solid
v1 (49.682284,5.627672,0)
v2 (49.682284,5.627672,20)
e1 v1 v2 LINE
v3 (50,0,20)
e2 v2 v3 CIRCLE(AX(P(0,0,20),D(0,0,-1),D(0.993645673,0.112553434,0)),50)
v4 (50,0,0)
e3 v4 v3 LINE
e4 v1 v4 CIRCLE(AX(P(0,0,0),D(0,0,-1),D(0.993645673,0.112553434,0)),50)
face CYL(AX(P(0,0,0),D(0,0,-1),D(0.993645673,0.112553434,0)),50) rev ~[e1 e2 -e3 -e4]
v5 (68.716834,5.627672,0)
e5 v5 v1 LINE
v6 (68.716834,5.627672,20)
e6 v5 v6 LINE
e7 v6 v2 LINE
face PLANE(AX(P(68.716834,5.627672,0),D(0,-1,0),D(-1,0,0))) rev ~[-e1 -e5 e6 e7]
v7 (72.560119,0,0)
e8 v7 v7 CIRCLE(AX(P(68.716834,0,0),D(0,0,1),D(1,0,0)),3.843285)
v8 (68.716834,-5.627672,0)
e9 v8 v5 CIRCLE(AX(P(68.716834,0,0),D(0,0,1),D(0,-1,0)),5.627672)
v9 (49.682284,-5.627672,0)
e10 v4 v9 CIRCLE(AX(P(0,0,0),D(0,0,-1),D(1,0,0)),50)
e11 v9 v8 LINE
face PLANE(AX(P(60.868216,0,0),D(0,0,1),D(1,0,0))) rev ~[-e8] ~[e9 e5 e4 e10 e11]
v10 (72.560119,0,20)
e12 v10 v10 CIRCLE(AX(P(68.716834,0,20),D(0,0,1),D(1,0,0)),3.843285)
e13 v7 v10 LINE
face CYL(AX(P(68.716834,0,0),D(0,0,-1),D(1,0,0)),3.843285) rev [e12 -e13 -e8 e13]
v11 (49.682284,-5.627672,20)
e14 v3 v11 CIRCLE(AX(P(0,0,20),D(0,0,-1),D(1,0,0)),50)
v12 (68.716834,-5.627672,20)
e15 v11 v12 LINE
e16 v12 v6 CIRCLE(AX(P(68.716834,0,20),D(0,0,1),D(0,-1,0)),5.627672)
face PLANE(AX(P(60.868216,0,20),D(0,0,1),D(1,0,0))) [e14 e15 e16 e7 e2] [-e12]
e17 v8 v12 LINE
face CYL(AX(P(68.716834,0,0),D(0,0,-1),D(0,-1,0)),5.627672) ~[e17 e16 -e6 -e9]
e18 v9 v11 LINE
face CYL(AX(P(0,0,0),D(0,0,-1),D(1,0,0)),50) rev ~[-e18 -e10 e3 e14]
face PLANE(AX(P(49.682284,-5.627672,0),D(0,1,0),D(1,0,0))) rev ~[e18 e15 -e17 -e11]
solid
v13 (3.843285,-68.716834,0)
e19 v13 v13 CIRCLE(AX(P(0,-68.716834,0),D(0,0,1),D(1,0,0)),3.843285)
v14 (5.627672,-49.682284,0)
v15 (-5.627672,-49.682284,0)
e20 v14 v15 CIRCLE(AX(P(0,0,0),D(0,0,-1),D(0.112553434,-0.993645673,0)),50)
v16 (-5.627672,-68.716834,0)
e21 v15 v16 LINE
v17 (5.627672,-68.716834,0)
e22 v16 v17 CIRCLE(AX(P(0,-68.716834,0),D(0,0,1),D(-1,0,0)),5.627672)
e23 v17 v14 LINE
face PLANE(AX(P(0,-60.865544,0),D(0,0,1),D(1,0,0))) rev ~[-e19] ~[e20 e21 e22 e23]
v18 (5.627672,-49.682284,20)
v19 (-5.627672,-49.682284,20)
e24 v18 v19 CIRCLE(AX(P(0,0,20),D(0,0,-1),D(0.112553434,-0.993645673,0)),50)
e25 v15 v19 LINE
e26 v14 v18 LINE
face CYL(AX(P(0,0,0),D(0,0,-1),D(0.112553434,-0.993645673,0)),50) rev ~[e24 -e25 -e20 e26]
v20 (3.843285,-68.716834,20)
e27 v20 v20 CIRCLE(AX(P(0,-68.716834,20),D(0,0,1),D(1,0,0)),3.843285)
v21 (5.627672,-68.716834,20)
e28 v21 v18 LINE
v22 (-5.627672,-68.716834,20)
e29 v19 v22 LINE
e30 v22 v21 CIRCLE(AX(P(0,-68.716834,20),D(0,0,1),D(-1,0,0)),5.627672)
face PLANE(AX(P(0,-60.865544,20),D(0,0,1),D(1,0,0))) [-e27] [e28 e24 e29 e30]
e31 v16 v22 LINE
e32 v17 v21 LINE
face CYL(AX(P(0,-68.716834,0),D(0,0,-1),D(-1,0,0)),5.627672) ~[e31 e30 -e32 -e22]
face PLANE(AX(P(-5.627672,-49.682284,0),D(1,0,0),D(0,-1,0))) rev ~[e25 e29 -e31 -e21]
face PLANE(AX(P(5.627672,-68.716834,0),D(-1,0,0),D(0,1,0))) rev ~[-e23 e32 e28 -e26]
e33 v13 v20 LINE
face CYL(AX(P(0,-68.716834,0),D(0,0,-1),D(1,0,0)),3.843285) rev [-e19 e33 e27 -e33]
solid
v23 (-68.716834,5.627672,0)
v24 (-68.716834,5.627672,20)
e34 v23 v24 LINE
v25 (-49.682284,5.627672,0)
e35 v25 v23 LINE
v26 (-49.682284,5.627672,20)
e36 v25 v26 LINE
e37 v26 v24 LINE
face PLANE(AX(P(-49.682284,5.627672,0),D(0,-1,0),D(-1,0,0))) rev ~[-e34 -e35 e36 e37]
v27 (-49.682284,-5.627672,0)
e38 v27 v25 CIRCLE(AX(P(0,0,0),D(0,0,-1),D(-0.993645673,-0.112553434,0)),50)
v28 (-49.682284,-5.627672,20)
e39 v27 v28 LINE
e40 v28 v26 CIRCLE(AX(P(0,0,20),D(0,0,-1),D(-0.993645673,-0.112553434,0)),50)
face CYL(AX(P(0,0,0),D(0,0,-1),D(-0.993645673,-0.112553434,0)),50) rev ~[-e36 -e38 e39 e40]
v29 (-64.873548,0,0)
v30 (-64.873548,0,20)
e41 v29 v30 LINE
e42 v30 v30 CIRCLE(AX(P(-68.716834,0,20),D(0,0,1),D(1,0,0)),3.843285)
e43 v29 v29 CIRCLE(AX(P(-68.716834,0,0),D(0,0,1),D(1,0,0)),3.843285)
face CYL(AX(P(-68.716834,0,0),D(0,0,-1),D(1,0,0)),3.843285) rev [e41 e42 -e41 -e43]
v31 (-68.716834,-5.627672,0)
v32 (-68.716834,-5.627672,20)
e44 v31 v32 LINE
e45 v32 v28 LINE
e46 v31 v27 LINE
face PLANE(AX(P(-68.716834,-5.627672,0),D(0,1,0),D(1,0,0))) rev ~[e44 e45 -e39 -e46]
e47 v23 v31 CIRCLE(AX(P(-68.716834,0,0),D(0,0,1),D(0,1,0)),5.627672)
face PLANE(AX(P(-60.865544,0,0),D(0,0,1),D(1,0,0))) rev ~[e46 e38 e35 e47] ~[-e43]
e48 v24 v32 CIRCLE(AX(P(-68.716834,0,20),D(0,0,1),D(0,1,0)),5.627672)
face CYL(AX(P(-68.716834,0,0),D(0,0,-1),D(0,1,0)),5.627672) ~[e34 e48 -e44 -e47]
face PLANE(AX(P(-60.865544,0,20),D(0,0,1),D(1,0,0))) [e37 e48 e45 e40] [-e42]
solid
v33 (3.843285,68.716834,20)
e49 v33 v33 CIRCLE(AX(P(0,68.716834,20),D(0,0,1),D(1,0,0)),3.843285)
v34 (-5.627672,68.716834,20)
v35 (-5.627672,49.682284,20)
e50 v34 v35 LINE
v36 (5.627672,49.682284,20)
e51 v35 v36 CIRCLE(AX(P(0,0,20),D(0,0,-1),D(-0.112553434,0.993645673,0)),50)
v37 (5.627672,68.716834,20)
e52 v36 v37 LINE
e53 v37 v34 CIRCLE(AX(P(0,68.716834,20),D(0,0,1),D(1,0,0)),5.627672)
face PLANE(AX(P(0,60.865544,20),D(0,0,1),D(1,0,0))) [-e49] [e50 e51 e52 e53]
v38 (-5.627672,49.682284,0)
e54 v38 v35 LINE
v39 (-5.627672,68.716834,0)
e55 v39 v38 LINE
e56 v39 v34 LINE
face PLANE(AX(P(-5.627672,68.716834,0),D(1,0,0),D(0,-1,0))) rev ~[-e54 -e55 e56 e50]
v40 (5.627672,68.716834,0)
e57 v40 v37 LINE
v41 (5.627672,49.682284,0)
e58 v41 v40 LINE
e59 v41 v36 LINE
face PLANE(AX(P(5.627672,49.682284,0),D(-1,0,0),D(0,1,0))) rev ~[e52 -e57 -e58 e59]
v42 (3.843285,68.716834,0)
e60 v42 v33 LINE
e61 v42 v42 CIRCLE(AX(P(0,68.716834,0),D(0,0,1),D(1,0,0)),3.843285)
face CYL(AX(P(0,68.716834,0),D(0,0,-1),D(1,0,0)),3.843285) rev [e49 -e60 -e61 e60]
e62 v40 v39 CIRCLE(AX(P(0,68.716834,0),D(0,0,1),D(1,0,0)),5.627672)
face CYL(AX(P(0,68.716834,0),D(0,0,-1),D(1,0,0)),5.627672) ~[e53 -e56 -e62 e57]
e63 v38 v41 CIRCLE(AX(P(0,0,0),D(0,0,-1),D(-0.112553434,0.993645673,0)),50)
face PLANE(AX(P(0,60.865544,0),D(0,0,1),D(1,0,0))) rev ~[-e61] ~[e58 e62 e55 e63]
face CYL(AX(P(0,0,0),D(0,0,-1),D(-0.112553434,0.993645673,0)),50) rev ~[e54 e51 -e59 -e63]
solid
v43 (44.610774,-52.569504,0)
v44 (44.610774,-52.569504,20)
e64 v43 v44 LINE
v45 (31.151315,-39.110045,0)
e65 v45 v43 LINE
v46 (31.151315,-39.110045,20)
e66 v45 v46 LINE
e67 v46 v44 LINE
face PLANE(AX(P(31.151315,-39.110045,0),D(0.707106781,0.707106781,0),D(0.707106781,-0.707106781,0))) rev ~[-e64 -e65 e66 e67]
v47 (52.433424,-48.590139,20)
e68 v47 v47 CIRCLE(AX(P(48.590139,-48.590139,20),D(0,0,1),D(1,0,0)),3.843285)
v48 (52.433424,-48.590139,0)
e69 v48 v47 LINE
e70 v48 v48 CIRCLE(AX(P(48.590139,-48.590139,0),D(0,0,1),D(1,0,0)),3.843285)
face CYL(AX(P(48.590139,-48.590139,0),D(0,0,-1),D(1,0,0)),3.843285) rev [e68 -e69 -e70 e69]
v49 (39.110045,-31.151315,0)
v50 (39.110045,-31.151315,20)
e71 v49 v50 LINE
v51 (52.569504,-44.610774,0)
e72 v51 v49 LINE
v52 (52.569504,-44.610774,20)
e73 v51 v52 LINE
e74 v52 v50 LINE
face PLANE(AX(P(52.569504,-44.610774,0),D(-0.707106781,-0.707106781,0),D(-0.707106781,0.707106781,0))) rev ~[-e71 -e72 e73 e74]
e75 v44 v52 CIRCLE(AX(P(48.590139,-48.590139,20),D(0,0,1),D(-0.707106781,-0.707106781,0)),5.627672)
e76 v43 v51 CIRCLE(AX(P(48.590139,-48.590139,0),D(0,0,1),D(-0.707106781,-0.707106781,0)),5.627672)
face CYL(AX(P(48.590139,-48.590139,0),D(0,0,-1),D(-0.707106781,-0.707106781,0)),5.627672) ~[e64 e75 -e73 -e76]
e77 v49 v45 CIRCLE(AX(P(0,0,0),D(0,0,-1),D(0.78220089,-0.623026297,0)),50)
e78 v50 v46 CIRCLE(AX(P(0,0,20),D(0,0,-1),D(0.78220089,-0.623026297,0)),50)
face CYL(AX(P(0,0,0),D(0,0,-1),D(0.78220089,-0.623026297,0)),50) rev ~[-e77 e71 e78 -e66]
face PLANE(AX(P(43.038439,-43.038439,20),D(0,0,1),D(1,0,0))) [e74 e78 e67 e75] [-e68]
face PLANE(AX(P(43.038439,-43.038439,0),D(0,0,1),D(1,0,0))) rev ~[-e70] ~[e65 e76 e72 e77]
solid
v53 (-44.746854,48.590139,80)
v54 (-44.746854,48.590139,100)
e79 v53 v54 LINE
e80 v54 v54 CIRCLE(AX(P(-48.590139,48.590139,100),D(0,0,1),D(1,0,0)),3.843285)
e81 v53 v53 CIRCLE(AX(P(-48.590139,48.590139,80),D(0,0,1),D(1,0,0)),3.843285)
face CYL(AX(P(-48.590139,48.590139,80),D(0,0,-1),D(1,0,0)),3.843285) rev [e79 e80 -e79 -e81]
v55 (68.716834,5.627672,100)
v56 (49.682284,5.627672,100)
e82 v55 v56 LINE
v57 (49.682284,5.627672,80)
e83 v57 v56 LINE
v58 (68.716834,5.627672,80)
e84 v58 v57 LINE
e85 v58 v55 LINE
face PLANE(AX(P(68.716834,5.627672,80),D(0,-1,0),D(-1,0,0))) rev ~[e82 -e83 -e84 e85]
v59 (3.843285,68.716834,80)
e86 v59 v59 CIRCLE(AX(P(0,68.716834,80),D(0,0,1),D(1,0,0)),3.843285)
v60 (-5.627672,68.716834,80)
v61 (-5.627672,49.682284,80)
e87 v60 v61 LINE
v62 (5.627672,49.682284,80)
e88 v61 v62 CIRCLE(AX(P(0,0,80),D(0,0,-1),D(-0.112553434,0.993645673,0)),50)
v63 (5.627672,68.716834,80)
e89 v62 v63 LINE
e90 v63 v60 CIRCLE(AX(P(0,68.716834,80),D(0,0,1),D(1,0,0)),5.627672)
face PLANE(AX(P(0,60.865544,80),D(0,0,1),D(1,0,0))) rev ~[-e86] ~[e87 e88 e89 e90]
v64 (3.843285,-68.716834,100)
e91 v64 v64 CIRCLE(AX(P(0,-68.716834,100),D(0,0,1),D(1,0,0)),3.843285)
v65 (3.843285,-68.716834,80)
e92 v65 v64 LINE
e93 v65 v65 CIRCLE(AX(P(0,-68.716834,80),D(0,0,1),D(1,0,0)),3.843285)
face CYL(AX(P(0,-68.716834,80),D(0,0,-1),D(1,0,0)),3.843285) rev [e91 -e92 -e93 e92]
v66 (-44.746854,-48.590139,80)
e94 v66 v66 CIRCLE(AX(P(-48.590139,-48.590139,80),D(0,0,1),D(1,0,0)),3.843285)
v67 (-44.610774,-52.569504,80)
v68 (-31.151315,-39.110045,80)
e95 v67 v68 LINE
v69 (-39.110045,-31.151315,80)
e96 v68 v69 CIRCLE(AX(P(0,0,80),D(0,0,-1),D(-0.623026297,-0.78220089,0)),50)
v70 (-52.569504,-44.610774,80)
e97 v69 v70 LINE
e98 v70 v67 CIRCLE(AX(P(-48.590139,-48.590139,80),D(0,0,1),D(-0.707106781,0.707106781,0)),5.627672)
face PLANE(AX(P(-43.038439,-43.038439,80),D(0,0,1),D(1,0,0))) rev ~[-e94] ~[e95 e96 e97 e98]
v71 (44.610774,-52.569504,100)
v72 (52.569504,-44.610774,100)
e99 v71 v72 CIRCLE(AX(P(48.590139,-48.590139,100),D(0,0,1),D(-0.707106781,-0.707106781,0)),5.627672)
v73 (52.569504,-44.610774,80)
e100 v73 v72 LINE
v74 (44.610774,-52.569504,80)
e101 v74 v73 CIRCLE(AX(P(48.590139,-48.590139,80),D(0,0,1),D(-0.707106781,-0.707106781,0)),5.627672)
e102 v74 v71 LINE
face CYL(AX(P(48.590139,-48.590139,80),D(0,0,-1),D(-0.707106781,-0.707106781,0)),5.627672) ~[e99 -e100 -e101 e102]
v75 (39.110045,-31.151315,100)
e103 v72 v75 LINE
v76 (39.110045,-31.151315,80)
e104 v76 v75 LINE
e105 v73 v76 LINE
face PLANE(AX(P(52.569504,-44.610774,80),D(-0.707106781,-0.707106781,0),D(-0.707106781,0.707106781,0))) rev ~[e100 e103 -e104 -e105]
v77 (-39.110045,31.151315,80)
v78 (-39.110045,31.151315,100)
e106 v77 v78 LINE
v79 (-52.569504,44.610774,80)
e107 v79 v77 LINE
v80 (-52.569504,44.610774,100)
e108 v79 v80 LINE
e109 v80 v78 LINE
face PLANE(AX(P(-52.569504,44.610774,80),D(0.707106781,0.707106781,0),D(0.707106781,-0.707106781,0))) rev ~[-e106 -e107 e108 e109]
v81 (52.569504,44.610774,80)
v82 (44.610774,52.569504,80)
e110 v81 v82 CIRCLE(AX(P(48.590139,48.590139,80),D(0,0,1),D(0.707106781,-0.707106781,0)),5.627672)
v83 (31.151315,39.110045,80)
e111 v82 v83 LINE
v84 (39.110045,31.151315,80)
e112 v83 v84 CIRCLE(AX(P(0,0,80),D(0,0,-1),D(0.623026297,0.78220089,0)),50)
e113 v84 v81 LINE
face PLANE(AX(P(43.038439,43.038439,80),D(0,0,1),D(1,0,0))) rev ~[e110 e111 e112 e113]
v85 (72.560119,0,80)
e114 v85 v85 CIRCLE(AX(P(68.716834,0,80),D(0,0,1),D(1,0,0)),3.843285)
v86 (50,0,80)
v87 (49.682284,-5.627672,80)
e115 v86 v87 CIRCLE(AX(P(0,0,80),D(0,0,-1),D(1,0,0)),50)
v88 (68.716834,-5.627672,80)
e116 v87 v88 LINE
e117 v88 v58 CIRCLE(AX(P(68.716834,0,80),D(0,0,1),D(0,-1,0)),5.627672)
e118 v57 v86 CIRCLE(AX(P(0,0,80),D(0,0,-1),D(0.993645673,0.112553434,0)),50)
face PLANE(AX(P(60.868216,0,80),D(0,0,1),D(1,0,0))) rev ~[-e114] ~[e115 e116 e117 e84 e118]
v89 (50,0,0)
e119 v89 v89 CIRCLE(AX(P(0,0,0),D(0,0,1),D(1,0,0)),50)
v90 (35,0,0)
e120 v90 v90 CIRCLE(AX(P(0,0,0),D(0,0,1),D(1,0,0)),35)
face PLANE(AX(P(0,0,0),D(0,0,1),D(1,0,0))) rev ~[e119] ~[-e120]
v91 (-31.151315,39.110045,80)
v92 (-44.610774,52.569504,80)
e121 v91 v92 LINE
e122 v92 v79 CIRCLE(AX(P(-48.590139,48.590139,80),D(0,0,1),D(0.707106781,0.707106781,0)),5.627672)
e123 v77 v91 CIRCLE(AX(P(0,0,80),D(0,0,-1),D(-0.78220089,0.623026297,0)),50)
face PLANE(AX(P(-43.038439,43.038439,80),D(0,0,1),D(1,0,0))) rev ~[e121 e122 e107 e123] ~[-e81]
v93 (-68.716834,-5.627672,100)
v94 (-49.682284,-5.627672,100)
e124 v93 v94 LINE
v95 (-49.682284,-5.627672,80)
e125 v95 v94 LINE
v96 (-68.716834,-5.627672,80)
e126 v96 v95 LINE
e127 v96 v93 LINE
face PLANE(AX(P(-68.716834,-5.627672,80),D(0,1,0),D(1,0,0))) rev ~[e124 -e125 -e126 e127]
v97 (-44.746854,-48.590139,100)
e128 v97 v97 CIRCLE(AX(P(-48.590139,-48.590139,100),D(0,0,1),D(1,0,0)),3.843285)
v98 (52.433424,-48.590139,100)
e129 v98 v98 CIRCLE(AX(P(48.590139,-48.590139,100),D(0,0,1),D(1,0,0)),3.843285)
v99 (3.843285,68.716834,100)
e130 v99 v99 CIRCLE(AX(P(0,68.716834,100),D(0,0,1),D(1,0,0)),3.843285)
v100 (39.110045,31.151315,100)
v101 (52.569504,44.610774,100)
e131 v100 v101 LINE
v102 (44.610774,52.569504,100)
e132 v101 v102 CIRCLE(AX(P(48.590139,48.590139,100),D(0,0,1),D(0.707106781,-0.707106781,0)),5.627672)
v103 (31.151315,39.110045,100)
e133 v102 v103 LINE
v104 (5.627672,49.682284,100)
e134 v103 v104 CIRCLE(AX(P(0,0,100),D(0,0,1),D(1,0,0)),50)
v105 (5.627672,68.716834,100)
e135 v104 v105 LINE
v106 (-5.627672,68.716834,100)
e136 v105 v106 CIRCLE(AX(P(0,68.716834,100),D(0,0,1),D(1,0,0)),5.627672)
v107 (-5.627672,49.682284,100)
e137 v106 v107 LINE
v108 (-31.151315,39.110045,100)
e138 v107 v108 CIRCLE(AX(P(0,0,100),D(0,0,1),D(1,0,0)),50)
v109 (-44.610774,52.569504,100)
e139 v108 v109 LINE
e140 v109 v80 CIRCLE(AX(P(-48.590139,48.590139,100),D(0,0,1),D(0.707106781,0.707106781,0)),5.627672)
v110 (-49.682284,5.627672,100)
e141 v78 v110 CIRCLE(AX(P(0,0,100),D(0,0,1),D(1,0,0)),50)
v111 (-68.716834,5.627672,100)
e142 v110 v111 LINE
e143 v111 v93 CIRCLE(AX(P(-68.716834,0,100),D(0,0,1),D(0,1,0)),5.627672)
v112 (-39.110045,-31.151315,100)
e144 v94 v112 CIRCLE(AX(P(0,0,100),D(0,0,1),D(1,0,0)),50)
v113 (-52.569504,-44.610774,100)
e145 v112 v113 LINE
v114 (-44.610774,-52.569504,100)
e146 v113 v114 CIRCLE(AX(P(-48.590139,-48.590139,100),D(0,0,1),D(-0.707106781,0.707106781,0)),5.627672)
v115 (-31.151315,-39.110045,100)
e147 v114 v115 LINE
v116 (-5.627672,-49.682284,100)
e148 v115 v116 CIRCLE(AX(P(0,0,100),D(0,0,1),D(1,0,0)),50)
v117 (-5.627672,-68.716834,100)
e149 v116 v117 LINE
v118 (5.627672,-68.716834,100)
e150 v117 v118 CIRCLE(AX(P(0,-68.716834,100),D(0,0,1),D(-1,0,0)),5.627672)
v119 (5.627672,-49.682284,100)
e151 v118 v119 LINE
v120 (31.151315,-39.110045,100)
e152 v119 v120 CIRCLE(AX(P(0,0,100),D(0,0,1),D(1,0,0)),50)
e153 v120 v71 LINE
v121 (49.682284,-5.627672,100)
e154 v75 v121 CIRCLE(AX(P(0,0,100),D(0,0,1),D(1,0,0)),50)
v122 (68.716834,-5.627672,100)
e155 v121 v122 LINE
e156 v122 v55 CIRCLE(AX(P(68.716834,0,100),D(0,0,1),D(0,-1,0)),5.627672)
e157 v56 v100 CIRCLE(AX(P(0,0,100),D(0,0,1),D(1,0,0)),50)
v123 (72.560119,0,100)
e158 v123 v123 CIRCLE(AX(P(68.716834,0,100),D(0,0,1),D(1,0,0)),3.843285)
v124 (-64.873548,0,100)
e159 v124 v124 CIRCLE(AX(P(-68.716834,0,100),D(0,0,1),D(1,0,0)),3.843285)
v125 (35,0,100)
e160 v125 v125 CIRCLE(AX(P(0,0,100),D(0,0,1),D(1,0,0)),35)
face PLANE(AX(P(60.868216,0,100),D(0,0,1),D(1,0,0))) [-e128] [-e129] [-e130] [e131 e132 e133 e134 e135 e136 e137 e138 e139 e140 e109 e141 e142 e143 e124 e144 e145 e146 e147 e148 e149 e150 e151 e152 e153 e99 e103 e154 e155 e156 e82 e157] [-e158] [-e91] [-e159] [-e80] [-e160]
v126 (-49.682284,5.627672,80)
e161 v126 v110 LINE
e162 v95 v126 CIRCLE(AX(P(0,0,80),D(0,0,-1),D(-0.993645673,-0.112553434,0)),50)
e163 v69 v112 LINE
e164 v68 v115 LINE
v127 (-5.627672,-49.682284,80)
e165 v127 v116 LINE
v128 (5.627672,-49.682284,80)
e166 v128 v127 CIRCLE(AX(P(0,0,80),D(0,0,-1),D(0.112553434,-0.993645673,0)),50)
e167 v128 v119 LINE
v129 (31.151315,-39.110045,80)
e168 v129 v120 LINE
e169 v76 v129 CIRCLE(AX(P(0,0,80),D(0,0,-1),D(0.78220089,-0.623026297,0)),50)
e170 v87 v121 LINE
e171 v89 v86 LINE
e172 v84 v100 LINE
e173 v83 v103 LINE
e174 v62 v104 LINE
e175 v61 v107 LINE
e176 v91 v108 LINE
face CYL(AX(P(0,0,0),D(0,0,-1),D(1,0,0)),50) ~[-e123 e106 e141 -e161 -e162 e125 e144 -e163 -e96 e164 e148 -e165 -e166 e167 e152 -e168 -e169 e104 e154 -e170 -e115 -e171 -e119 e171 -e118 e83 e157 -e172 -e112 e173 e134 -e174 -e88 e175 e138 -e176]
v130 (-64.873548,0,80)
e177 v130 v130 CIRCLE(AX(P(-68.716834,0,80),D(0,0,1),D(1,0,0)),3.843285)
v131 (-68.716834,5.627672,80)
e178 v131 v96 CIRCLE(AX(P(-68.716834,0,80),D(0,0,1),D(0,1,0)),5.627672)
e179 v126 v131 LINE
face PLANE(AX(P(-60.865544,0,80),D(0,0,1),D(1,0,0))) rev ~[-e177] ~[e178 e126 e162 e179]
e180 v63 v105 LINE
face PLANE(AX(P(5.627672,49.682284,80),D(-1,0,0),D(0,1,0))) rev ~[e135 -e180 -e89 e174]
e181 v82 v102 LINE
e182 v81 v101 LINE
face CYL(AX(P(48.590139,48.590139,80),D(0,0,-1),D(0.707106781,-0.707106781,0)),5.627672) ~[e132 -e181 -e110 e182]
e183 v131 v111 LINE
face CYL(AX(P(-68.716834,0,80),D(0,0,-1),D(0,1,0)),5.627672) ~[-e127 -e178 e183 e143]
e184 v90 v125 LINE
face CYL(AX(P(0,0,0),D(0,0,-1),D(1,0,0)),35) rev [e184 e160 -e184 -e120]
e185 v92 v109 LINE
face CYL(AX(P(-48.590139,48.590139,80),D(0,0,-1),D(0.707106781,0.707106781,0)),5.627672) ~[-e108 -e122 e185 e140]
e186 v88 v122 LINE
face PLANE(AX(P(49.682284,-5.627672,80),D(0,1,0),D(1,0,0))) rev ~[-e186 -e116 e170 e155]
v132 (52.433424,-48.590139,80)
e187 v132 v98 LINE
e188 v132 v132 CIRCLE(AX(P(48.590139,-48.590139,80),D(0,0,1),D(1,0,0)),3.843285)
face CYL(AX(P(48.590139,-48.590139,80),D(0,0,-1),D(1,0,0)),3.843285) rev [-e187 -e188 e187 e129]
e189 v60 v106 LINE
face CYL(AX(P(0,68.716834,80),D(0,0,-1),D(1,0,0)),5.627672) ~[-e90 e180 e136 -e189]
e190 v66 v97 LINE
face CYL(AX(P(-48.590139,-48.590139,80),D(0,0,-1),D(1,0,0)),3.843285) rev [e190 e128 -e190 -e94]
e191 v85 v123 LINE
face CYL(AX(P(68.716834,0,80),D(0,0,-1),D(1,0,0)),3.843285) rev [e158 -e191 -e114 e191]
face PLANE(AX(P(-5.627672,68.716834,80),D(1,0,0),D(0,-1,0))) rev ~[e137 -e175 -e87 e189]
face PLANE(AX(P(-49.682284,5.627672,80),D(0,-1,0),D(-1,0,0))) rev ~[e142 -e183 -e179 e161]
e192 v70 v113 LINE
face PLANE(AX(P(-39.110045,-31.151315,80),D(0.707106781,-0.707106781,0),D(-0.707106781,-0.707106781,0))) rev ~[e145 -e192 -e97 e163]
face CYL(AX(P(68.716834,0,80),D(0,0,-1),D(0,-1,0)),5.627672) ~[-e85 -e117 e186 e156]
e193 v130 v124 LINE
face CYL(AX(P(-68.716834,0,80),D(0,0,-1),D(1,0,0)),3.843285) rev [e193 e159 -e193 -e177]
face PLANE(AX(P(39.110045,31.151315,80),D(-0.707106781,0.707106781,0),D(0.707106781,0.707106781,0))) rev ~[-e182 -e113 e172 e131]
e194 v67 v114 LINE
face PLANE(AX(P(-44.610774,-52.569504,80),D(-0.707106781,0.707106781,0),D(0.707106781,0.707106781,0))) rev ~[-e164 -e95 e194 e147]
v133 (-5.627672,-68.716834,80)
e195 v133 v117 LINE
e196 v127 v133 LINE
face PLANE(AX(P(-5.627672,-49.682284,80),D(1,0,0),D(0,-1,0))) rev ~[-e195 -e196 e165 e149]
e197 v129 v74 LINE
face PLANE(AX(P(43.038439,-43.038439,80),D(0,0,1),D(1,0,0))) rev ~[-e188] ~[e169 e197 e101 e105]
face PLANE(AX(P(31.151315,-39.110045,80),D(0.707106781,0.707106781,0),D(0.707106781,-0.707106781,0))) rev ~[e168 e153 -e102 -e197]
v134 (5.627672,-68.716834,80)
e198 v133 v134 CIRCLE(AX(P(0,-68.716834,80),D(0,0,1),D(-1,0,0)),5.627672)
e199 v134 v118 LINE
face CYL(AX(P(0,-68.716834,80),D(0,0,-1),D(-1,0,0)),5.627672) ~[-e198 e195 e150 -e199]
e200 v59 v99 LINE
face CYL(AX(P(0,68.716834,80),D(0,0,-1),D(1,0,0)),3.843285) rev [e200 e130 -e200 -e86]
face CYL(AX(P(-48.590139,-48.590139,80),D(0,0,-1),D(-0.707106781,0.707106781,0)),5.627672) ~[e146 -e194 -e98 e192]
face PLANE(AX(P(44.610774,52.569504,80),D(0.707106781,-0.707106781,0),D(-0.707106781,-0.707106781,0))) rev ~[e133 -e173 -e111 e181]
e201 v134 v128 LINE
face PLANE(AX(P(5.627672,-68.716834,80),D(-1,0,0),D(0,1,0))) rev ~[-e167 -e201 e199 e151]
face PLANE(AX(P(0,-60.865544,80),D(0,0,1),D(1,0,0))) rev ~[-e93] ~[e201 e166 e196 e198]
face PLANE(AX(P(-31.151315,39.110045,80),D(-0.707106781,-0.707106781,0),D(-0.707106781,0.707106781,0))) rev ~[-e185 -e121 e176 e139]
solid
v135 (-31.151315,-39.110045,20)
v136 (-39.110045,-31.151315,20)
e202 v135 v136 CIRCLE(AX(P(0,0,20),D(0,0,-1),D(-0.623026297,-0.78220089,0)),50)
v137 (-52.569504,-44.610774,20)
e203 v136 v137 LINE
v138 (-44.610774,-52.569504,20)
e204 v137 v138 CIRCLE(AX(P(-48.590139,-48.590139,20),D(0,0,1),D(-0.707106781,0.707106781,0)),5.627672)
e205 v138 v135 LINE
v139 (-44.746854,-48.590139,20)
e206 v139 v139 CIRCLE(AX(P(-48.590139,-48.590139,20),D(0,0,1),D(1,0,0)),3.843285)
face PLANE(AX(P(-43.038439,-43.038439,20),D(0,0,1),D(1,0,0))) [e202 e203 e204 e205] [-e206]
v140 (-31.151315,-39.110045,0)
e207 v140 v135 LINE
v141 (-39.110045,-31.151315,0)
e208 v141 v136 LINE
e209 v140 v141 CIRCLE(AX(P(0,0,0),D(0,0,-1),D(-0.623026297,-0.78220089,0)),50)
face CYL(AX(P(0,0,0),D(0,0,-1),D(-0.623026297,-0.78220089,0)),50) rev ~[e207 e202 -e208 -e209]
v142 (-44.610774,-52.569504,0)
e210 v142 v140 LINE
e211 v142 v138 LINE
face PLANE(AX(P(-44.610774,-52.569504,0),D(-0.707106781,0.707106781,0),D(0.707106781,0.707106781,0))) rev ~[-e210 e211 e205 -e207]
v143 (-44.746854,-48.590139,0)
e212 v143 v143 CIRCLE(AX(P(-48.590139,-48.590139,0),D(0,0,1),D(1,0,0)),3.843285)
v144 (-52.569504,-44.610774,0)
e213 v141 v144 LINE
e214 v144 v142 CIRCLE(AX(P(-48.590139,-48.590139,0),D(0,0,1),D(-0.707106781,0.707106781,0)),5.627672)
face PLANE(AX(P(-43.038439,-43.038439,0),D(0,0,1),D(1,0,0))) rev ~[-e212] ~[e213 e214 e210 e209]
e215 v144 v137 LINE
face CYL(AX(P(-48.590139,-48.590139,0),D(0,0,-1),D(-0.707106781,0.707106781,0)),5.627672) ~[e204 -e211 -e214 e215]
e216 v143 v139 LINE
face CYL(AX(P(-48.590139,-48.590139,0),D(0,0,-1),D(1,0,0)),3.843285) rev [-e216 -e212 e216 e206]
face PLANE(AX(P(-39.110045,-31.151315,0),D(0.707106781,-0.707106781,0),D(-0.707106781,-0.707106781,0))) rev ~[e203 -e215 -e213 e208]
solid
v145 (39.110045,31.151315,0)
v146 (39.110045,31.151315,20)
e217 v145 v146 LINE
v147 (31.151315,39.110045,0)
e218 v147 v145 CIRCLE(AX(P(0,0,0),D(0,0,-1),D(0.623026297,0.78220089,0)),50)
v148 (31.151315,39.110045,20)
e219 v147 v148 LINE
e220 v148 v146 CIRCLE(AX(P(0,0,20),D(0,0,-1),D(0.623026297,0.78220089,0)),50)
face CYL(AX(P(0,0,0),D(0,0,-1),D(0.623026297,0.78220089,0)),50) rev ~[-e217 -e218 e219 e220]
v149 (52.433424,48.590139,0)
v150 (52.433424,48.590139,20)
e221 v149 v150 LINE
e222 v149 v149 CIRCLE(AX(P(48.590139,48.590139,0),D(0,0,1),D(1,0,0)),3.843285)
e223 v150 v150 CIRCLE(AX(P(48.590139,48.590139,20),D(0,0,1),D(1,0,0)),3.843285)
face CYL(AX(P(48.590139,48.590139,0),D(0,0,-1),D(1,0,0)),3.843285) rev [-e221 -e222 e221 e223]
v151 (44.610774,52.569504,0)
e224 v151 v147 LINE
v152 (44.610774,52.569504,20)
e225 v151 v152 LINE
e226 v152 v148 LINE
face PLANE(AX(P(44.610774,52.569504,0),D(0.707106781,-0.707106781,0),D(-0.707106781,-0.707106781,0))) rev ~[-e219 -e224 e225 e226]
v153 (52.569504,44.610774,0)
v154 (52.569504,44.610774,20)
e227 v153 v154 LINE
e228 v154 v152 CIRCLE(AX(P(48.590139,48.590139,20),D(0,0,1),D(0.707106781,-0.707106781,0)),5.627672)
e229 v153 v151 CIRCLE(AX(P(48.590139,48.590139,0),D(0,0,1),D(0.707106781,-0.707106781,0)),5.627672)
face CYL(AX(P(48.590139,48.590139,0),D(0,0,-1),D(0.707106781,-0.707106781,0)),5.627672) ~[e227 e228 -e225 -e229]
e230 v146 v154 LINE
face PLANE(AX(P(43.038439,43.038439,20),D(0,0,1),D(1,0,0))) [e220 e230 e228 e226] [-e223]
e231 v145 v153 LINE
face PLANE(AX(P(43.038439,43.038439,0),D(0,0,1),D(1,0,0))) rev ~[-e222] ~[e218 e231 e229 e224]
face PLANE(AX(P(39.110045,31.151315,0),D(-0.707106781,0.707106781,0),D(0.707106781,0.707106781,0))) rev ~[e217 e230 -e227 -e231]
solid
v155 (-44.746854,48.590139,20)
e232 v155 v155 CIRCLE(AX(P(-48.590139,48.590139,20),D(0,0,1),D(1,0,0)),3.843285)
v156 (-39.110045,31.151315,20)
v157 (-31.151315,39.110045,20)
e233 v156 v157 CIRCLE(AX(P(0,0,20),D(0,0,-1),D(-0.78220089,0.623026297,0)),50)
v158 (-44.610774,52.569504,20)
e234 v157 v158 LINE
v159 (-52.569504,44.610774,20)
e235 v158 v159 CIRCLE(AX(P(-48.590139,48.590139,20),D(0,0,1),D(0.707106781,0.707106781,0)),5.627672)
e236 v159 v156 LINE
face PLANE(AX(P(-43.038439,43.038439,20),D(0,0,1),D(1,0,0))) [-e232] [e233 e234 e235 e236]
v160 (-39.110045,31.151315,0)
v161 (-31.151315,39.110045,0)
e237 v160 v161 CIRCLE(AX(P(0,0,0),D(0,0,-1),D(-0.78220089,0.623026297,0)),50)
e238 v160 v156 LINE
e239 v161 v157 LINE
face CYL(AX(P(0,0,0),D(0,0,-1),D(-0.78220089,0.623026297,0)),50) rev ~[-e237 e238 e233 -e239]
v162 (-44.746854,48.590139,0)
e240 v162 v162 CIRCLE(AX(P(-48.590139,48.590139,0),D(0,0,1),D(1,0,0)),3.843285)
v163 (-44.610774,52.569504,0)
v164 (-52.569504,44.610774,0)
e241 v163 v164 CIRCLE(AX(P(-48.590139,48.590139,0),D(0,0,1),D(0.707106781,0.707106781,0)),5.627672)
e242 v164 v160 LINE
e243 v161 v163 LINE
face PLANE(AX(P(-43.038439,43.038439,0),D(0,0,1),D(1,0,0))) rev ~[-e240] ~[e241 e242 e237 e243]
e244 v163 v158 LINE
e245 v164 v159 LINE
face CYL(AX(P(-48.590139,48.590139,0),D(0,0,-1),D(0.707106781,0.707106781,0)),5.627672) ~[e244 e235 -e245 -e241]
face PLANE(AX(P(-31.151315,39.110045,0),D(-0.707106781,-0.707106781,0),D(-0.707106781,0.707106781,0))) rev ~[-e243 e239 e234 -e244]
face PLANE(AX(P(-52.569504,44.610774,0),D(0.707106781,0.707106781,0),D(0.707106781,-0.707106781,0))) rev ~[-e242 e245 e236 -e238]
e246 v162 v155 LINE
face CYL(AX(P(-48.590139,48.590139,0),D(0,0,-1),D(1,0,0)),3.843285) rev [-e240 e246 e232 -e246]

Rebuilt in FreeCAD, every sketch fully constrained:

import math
import FreeCAD as App
import Part
import Sketcher
from FreeCAD import Vector
Q = App.Units.Quantity

doc = App.newDocument("Part")
body = doc.addObject("PartDesign::Body", "Body")

# Sketch on XY plane
sketch1 = body.newObject("Sketcher::SketchObject", "Sketch")
sketch1.AttachmentSupport = (doc.getObject("XY_Plane"), [""])
sketch1.MapMode = "FlatFace"
sketch1.addGeometry([
    Part.Circle(Vector(0, 0, 0), Vector(0, 0, 1), 50),
    Part.Circle(Vector(0, 0, 0), Vector(0, 0, 1), 35),
], False)
sketch1.addConstraint([
    Sketcher.Constraint("Coincident", 0, 3, -1, 1),
    Sketcher.Constraint("Coincident", 1, 3, -1, 1),
    Sketcher.Constraint("Diameter", 0, 100.0),
    Sketcher.Constraint("Diameter", 1, 70.0),
])
pad1 = body.newObject("PartDesign::Pad", "Pad")
pad1.Profile = sketch1
pad1.Length = 100

# Sketch on XY plane
sketch2 = body.newObject("Sketcher::SketchObject", "Sketch001")
sketch2.AttachmentSupport = (doc.getObject("XY_Plane"), [""])
sketch2.MapMode = "FlatFace"
sketch2.AttachmentOffset = App.Placement(Vector(0, 0, 80), App.Rotation())
sketch2.addGeometry([
    Part.LineSegment(Vector(68.716834, 5.627672, 0), Vector(49.682284, 5.627672, 0)),  # 0
    Part.ArcOfCircle(Part.Circle(Vector(0, 0, 0), Vector(0, 0, 1), 50), math.radians(0), math.radians(6.462531)),  # 1
    Part.ArcOfCircle(Part.Circle(Vector(0, 0, 0), Vector(0, 0, 1), 50), math.radians(-6.462531), math.radians(0)),  # 2
    Part.LineSegment(Vector(49.682284, -5.627672, 0), Vector(68.716834, -5.627672, 0)),  # 3
    Part.ArcOfCircle(Part.Circle(Vector(68.716834, 0, 0), Vector(0, 0, 1), 5.627672), math.radians(-90), math.radians(90)),  # 4
    Part.Circle(Vector(68.716834, 0, 0), Vector(0, 0, 1), 3.843285),  # 5
    Part.ArcOfCircle(Part.Circle(Vector(0, 0, 0), Vector(0, 0, 1), 50), math.radians(-51.462531), math.radians(-38.537469)),  # 6
    Part.LineSegment(Vector(31.151315, -39.110045, 0), Vector(44.610774, -52.569504, 0)),  # 7
    Part.ArcOfCircle(Part.Circle(Vector(48.590139, -48.590139, 0), Vector(0, 0, 1), 5.627672), math.radians(-135), math.radians(45)),  # 8
    Part.LineSegment(Vector(52.569504, -44.610774, 0), Vector(39.110045, -31.151315, 0)),  # 9
    Part.Circle(Vector(48.590139, -48.590139, 0), Vector(0, 0, 1), 3.843285),  # 10
    Part.ArcOfCircle(Part.Circle(Vector(0, 0, 0), Vector(0, 0, 1), 50), math.radians(-96.462531), math.radians(-83.537469)),  # 11
    Part.LineSegment(Vector(-5.627672, -49.682284, 0), Vector(-5.627672, -68.716834, 0)),  # 12
    Part.ArcOfCircle(Part.Circle(Vector(0, -68.716834, 0), Vector(0, 0, 1), 5.627672), math.radians(-180), math.radians(0)),  # 13
    Part.LineSegment(Vector(5.627672, -68.716834, 0), Vector(5.627672, -49.682284, 0)),  # 14
    Part.Circle(Vector(0, -68.716834, 0), Vector(0, 0, 1), 3.843285),  # 15
    Part.ArcOfCircle(Part.Circle(Vector(0, 0, 0), Vector(0, 0, 1), 50), math.radians(-141.462531), math.radians(-128.537469)),  # 16
    Part.LineSegment(Vector(-39.110045, -31.151315, 0), Vector(-52.569504, -44.610774, 0)),  # 17
    Part.ArcOfCircle(Part.Circle(Vector(-48.590139, -48.590139, 0), Vector(0, 0, 1), 5.627672), math.radians(135), math.radians(315)),  # 18
    Part.LineSegment(Vector(-44.610774, -52.569504, 0), Vector(-31.151315, -39.110045, 0)),  # 19
    Part.Circle(Vector(-48.590139, -48.590139, 0), Vector(0, 0, 1), 3.843285),  # 20
    Part.ArcOfCircle(Part.Circle(Vector(0, 0, 0), Vector(0, 0, 1), 50), math.radians(173.537469), math.radians(186.462531)),  # 21
    Part.LineSegment(Vector(-49.682284, 5.627672, 0), Vector(-68.716834, 5.627672, 0)),  # 22
    Part.ArcOfCircle(Part.Circle(Vector(-68.716834, 0, 0), Vector(0, 0, 1), 5.627672), math.radians(90), math.radians(270)),  # 23
    Part.LineSegment(Vector(-68.716834, -5.627672, 0), Vector(-49.682284, -5.627672, 0)),  # 24
    Part.Circle(Vector(-68.716834, 0, 0), Vector(0, 0, 1), 3.843285),  # 25
    Part.ArcOfCircle(Part.Circle(Vector(0, 0, 0), Vector(0, 0, 1), 50), math.radians(128.537469), math.radians(141.462531)),  # 26
    Part.LineSegment(Vector(-31.151315, 39.110045, 0), Vector(-44.610774, 52.569504, 0)),  # 27
    Part.ArcOfCircle(Part.Circle(Vector(-48.590139, 48.590139, 0), Vector(0, 0, 1), 5.627672), math.radians(45), math.radians(225)),  # 28
    Part.LineSegment(Vector(-52.569504, 44.610774, 0), Vector(-39.110045, 31.151315, 0)),  # 29
    Part.Circle(Vector(-48.590139, 48.590139, 0), Vector(0, 0, 1), 3.843285),  # 30
    Part.LineSegment(Vector(-5.627672, 68.716834, 0), Vector(-5.627672, 49.682284, 0)),  # 31
    Part.ArcOfCircle(Part.Circle(Vector(0, 0, 0), Vector(0, 0, 1), 50), math.radians(83.537469), math.radians(96.462531)),  # 32
    Part.LineSegment(Vector(5.627672, 49.682284, 0), Vector(5.627672, 68.716834, 0)),  # 33
    Part.ArcOfCircle(Part.Circle(Vector(0, 68.716834, 0), Vector(0, 0, 1), 5.627672), math.radians(0), math.radians(180)),  # 34
    Part.Circle(Vector(0, 68.716834, 0), Vector(0, 0, 1), 3.843285),  # 35
    Part.LineSegment(Vector(39.110045, 31.151315, 0), Vector(52.569504, 44.610774, 0)),  # 36
    Part.ArcOfCircle(Part.Circle(Vector(48.590139, 48.590139, 0), Vector(0, 0, 1), 5.627672), math.radians(-45), math.radians(135)),  # 37
    Part.LineSegment(Vector(44.610774, 52.569504, 0), Vector(31.151315, 39.110045, 0)),  # 38
    Part.ArcOfCircle(Part.Circle(Vector(0, 0, 0), Vector(0, 0, 1), 50), math.radians(38.537469), math.radians(51.462531)),  # 39
], False)
sketch2.addConstraint([
    Sketcher.Constraint("Coincident", 0, 2, 1, 2),
    Sketcher.Constraint("Tangent", 1, 1, 2, 2),
    Sketcher.Constraint("Coincident", 2, 1, 3, 1),
    Sketcher.Constraint("Tangent", 3, 2, 4, 1),
    Sketcher.Constraint("Tangent", 4, 2, 0, 1),
    Sketcher.Constraint("Coincident", 6, 1, 7, 1),
    Sketcher.Constraint("Tangent", 7, 2, 8, 1),
    Sketcher.Constraint("Tangent", 8, 2, 9, 1),
    Sketcher.Constraint("Coincident", 9, 2, 6, 2),
    Sketcher.Constraint("Coincident", 11, 1, 12, 1),
    Sketcher.Constraint("Tangent", 12, 2, 13, 1),
    Sketcher.Constraint("Tangent", 13, 2, 14, 1),
    Sketcher.Constraint("Coincident", 14, 2, 11, 2),
    Sketcher.Constraint("Coincident", 16, 1, 17, 1),
    Sketcher.Constraint("Tangent", 17, 2, 18, 1),
    Sketcher.Constraint("Tangent", 18, 2, 19, 1),
    Sketcher.Constraint("Coincident", 19, 2, 16, 2),
    Sketcher.Constraint("Coincident", 21, 1, 22, 1),
    Sketcher.Constraint("Tangent", 22, 2, 23, 1),
    Sketcher.Constraint("Tangent", 23, 2, 24, 1),
    Sketcher.Constraint("Coincident", 24, 2, 21, 2),
    Sketcher.Constraint("Coincident", 26, 1, 27, 1),
    Sketcher.Constraint("Tangent", 27, 2, 28, 1),
    Sketcher.Constraint("Tangent", 28, 2, 29, 1),
    Sketcher.Constraint("Coincident", 29, 2, 26, 2),
    Sketcher.Constraint("Coincident", 31, 2, 32, 2),
    Sketcher.Constraint("Coincident", 32, 1, 33, 1),
    Sketcher.Constraint("Tangent", 33, 2, 34, 1),
    Sketcher.Constraint("Tangent", 34, 2, 31, 1),
    Sketcher.Constraint("Tangent", 36, 2, 37, 1),
    Sketcher.Constraint("Tangent", 37, 2, 38, 1),
    Sketcher.Constraint("Coincident", 38, 2, 39, 2),
    Sketcher.Constraint("Coincident", 39, 1, 36, 1),
    Sketcher.Constraint("Horizontal", 0),
    Sketcher.Constraint("Horizontal", 3),
    Sketcher.Constraint("Vertical", 12),
    Sketcher.Constraint("Vertical", 14),
    Sketcher.Constraint("Horizontal", 22),
    Sketcher.Constraint("Horizontal", 24),
    Sketcher.Constraint("Vertical", 31),
    Sketcher.Constraint("Vertical", 33),
    Sketcher.Constraint("Coincident", 1, 3, -1, 1),
    Sketcher.Constraint("Coincident", 6, 3, -1, 1),
    Sketcher.Constraint("Coincident", 11, 3, -1, 1),
    Sketcher.Constraint("Coincident", 16, 3, -1, 1),
    Sketcher.Constraint("Coincident", 21, 3, -1, 1),
    Sketcher.Constraint("Coincident", 26, 3, -1, 1),
    Sketcher.Constraint("Coincident", 32, 3, -1, 1),
    Sketcher.Constraint("Coincident", 39, 3, -1, 1),
    Sketcher.Constraint("Coincident", 5, 3, 4, 3),
    Sketcher.Constraint("Coincident", 10, 3, 8, 3),
    Sketcher.Constraint("Coincident", 15, 3, 13, 3),
    Sketcher.Constraint("Coincident", 20, 3, 18, 3),
    Sketcher.Constraint("Coincident", 25, 3, 23, 3),
    Sketcher.Constraint("Coincident", 30, 3, 28, 3),
    Sketcher.Constraint("Coincident", 35, 3, 34, 3),
    Sketcher.Constraint("Equal", 1, 2),
    Sketcher.Constraint("Equal", 2, 6),
    Sketcher.Constraint("Equal", 4, 8),
    Sketcher.Constraint("Equal", 5, 10),
    Sketcher.Constraint("Equal", 6, 11),
    Sketcher.Constraint("Equal", 8, 13),
    Sketcher.Constraint("Equal", 10, 15),
    Sketcher.Constraint("Equal", 11, 16),
    Sketcher.Constraint("Equal", 13, 18),
    Sketcher.Constraint("Equal", 15, 20),
    Sketcher.Constraint("Equal", 16, 21),
    Sketcher.Constraint("Equal", 18, 23),
    Sketcher.Constraint("Equal", 20, 25),
    Sketcher.Constraint("Equal", 21, 26),
    Sketcher.Constraint("Equal", 23, 28),
    Sketcher.Constraint("Equal", 25, 30),
    Sketcher.Constraint("Equal", 26, 32),
    Sketcher.Constraint("Equal", 28, 34),
    Sketcher.Constraint("Equal", 30, 35),
    Sketcher.Constraint("Equal", 34, 37),
    Sketcher.Constraint("Equal", 32, 39),
    Sketcher.Constraint("Symmetric", 4, 3, 23, 3, -1, 1),
    Sketcher.Constraint("Symmetric", 8, 3, 28, 3, -1, 1),
    Sketcher.Constraint("Symmetric", 13, 3, 34, 3, -1, 1),
    Sketcher.Constraint("Symmetric", 18, 3, 37, 3, -1, 1),
    Sketcher.Constraint("Symmetric", 8, 3, 18, 3, -2),
    Sketcher.Constraint("PointOnObject", 4, 3, -1),
    Sketcher.Constraint("PointOnObject", 13, 3, -2),
    Sketcher.Constraint("PointOnObject", 1, 1, -1),
    Sketcher.Constraint("Parallel", 7, 9),
    Sketcher.Constraint("Perpendicular", 9, 17),
    Sketcher.Constraint("Parallel", 17, 19),
    Sketcher.Constraint("Perpendicular", 19, 27),
    Sketcher.Constraint("Parallel", 27, 29),
    Sketcher.Constraint("Perpendicular", 29, 36),
    Sketcher.Constraint("Parallel", 36, 38),
    Sketcher.Constraint("Horizontal", 9, 2, 16, 1),
    Sketcher.Constraint("Equal", 24, 12),
    Sketcher.Constraint("Equal", 7, 9),
    Sketcher.Constraint("Radius", 1, 50.0),
    Sketcher.Constraint("Diameter", 5, 7.68657),
    Sketcher.Constraint("Radius", 4, 5.627672),
    Sketcher.Constraint("DistanceX", 0, 2, 0, 1, 19.03455),
    Sketcher.Constraint("Distance", 7, 19.03455),
])
pad2 = body.newObject("PartDesign::Pad", "Pad001")
pad2.Profile = sketch2
pad2.Length = 20
body2 = doc.addObject("PartDesign::Body", "Body001")

# Sketch on XY plane
sketch3 = body2.newObject("Sketcher::SketchObject", "Sketch002")
sketch3.AttachmentSupport = (doc.getObject("XY_Plane001"), [""])
sketch3.MapMode = "FlatFace"
sketch3.addGeometry([
    Part.ArcOfCircle(Part.Circle(Vector(0, 0, 0), Vector(0, 0, 1), 50), math.radians(38.537469), math.radians(51.462531)),  # 0
    Part.LineSegment(Vector(39.110045, 31.151315, 0), Vector(52.569504, 44.610774, 0)),  # 1
    Part.ArcOfCircle(Part.Circle(Vector(48.590139, 48.590139, 0), Vector(0, 0, 1), 5.627672), math.radians(-45), math.radians(135)),  # 2
    Part.LineSegment(Vector(44.610774, 52.569504, 0), Vector(31.151315, 39.110045, 0)),  # 3
    Part.Circle(Vector(48.590139, 48.590139, 0), Vector(0, 0, 1), 3.843285),  # 4
], False)
sketch3.addConstraint([
    Sketcher.Constraint("Coincident", 0, 1, 1, 1),
    Sketcher.Constraint("Tangent", 1, 2, 2, 1),
    Sketcher.Constraint("Tangent", 2, 2, 3, 1),
    Sketcher.Constraint("Coincident", 3, 2, 0, 2),
    Sketcher.Constraint("Coincident", 0, 3, -1, 1),
    Sketcher.Constraint("Coincident", 4, 3, 2, 3),
    Sketcher.Constraint("Parallel", 1, 3),
    Sketcher.Constraint("Equal", 1, 3),
    Sketcher.Constraint("Radius", 0, 50.0),
    Sketcher.Constraint("Angle", 1, Q("45 deg")),
    Sketcher.Constraint("Diameter", 4, 7.68657),
    Sketcher.Constraint("Radius", 2, 5.627672),
    Sketcher.Constraint("Distance", 1, 19.03455),
])
pad3 = body2.newObject("PartDesign::Pad", "Pad002")
pad3.Profile = sketch3
pad3.Length = 20
body3 = doc.addObject("PartDesign::Body", "Body002")

# Sketch on XY plane
sketch4 = body3.newObject("Sketcher::SketchObject", "Sketch003")
sketch4.AttachmentSupport = (doc.getObject("XY_Plane002"), [""])
sketch4.MapMode = "FlatFace"
sketch4.addGeometry([
    Part.LineSegment(Vector(68.716834, 5.627672, 0), Vector(49.682284, 5.627672, 0)),  # 0
    Part.ArcOfCircle(Part.Circle(Vector(0, 0, 0), Vector(0, 0, 1), 50), math.radians(0), math.radians(6.462531)),  # 1
    Part.ArcOfCircle(Part.Circle(Vector(0, 0, 0), Vector(0, 0, 1), 50), math.radians(-6.462531), math.radians(0)),  # 2
    Part.LineSegment(Vector(49.682284, -5.627672, 0), Vector(68.716834, -5.627672, 0)),  # 3
    Part.ArcOfCircle(Part.Circle(Vector(68.716834, 0, 0), Vector(0, 0, 1), 5.627672), math.radians(-90), math.radians(90)),  # 4
    Part.Circle(Vector(68.716834, 0, 0), Vector(0, 0, 1), 3.843285),  # 5
], False)
sketch4.addConstraint([
    Sketcher.Constraint("Coincident", 0, 2, 1, 2),
    Sketcher.Constraint("Tangent", 1, 1, 2, 2),
    Sketcher.Constraint("Coincident", 2, 1, 3, 1),
    Sketcher.Constraint("Tangent", 3, 2, 4, 1),
    Sketcher.Constraint("Tangent", 4, 2, 0, 1),
    Sketcher.Constraint("Horizontal", 0),
    Sketcher.Constraint("Horizontal", 3),
    Sketcher.Constraint("Coincident", 1, 3, -1, 1),
    Sketcher.Constraint("Coincident", 5, 3, 4, 3),
    Sketcher.Constraint("Equal", 1, 2),
    Sketcher.Constraint("PointOnObject", 4, 3, -1),
    Sketcher.Constraint("PointOnObject", 1, 1, -1),
    Sketcher.Constraint("Radius", 1, 50.0),
    Sketcher.Constraint("Diameter", 5, 7.68657),
    Sketcher.Constraint("Radius", 4, 5.627672),
    Sketcher.Constraint("DistanceX", 0, 2, 0, 1, 19.03455),
])
pad4 = body3.newObject("PartDesign::Pad", "Pad003")
pad4.Profile = sketch4
pad4.Length = 20
body4 = doc.addObject("PartDesign::Body", "Body003")

# Sketch on XY plane
sketch5 = body4.newObject("Sketcher::SketchObject", "Sketch004")
sketch5.AttachmentSupport = (doc.getObject("XY_Plane003"), [""])
sketch5.MapMode = "FlatFace"
sketch5.addGeometry([
    Part.LineSegment(Vector(52.569504, -44.610774, 0), Vector(39.110045, -31.151315, 0)),  # 0
    Part.ArcOfCircle(Part.Circle(Vector(0, 0, 0), Vector(0, 0, 1), 50), math.radians(-51.462531), math.radians(-38.537469)),  # 1
    Part.LineSegment(Vector(31.151315, -39.110045, 0), Vector(44.610774, -52.569504, 0)),  # 2
    Part.ArcOfCircle(Part.Circle(Vector(48.590139, -48.590139, 0), Vector(0, 0, 1), 5.627672), math.radians(-135), math.radians(45)),  # 3
    Part.Circle(Vector(48.590139, -48.590139, 0), Vector(0, 0, 1), 3.843285),  # 4
], False)
sketch5.addConstraint([
    Sketcher.Constraint("Coincident", 0, 2, 1, 2),
    Sketcher.Constraint("Coincident", 1, 1, 2, 1),
    Sketcher.Constraint("Tangent", 2, 2, 3, 1),
    Sketcher.Constraint("Tangent", 3, 2, 0, 1),
    Sketcher.Constraint("Coincident", 1, 3, -1, 1),
    Sketcher.Constraint("Coincident", 4, 3, 3, 3),
    Sketcher.Constraint("Parallel", 0, 2),
    Sketcher.Constraint("Equal", 0, 2),
    Sketcher.Constraint("Radius", 1, 50.0),
    Sketcher.Constraint("Angle", 0, Q("135 deg")),
    Sketcher.Constraint("Diameter", 4, 7.68657),
    Sketcher.Constraint("Radius", 3, 5.627672),
    Sketcher.Constraint("Distance", 0, 19.03455),
])
pad5 = body4.newObject("PartDesign::Pad", "Pad004")
pad5.Profile = sketch5
pad5.Length = 20
body5 = doc.addObject("PartDesign::Body", "Body004")

# Sketch on XY plane
sketch6 = body5.newObject("Sketcher::SketchObject", "Sketch005")
sketch6.AttachmentSupport = (doc.getObject("XY_Plane004"), [""])
sketch6.MapMode = "FlatFace"
sketch6.addGeometry([
    Part.LineSegment(Vector(5.627672, -68.716834, 0), Vector(5.627672, -49.682284, 0)),  # 0
    Part.ArcOfCircle(Part.Circle(Vector(0, 0, 0), Vector(0, 0, 1), 50), math.radians(-96.462531), math.radians(-83.537469)),  # 1
    Part.LineSegment(Vector(-5.627672, -49.682284, 0), Vector(-5.627672, -68.716834, 0)),  # 2
    Part.ArcOfCircle(Part.Circle(Vector(0, -68.716834, 0), Vector(0, 0, 1), 5.627672), math.radians(-180), math.radians(0)),  # 3
    Part.Circle(Vector(0, -68.716834, 0), Vector(0, 0, 1), 3.843285),  # 4
], False)
sketch6.addConstraint([
    Sketcher.Constraint("Coincident", 0, 2, 1, 2),
    Sketcher.Constraint("Coincident", 1, 1, 2, 1),
    Sketcher.Constraint("Tangent", 2, 2, 3, 1),
    Sketcher.Constraint("Tangent", 3, 2, 0, 1),
    Sketcher.Constraint("Vertical", 0),
    Sketcher.Constraint("Vertical", 2),
    Sketcher.Constraint("Coincident", 1, 3, -1, 1),
    Sketcher.Constraint("Coincident", 4, 3, 3, 3),
    Sketcher.Constraint("PointOnObject", 3, 3, -2),
    Sketcher.Constraint("Radius", 1, 50.0),
    Sketcher.Constraint("Diameter", 4, 7.68657),
    Sketcher.Constraint("Radius", 3, 5.627672),
    Sketcher.Constraint("DistanceY", 0, 1, 0, 2, 19.03455),
])
pad6 = body5.newObject("PartDesign::Pad", "Pad005")
pad6.Profile = sketch6
pad6.Length = 20
body6 = doc.addObject("PartDesign::Body", "Body005")

# Sketch on XY plane
sketch7 = body6.newObject("Sketcher::SketchObject", "Sketch006")
sketch7.AttachmentSupport = (doc.getObject("XY_Plane005"), [""])
sketch7.MapMode = "FlatFace"
sketch7.addGeometry([
    Part.ArcOfCircle(Part.Circle(Vector(0, 0, 0), Vector(0, 0, 1), 50), math.radians(83.537469), math.radians(96.462531)),  # 0
    Part.LineSegment(Vector(5.627672, 49.682284, 0), Vector(5.627672, 68.716834, 0)),  # 1
    Part.ArcOfCircle(Part.Circle(Vector(0, 68.716834, 0), Vector(0, 0, 1), 5.627672), math.radians(0), math.radians(180)),  # 2
    Part.LineSegment(Vector(-5.627672, 68.716834, 0), Vector(-5.627672, 49.682284, 0)),  # 3
    Part.Circle(Vector(0, 68.716834, 0), Vector(0, 0, 1), 3.843285),  # 4
], False)
sketch7.addConstraint([
    Sketcher.Constraint("Coincident", 0, 1, 1, 1),
    Sketcher.Constraint("Tangent", 1, 2, 2, 1),
    Sketcher.Constraint("Tangent", 2, 2, 3, 1),
    Sketcher.Constraint("Coincident", 3, 2, 0, 2),
    Sketcher.Constraint("Vertical", 1),
    Sketcher.Constraint("Vertical", 3),
    Sketcher.Constraint("Coincident", 0, 3, -1, 1),
    Sketcher.Constraint("Coincident", 4, 3, 2, 3),
    Sketcher.Constraint("PointOnObject", 2, 3, -2),
    Sketcher.Constraint("Radius", 0, 50.0),
    Sketcher.Constraint("Diameter", 4, 7.68657),
    Sketcher.Constraint("Radius", 2, 5.627672),
    Sketcher.Constraint("DistanceY", 1, 1, 1, 2, 19.03455),
])
pad7 = body6.newObject("PartDesign::Pad", "Pad006")
pad7.Profile = sketch7
pad7.Length = 20
body7 = doc.addObject("PartDesign::Body", "Body006")

# Sketch on XY plane
sketch8 = body7.newObject("Sketcher::SketchObject", "Sketch007")
sketch8.AttachmentSupport = (doc.getObject("XY_Plane006"), [""])
sketch8.MapMode = "FlatFace"
sketch8.addGeometry([
    Part.ArcOfCircle(Part.Circle(Vector(0, 0, 0), Vector(0, 0, 1), 50), math.radians(128.537469), math.radians(141.462531)),  # 0
    Part.LineSegment(Vector(-31.151315, 39.110045, 0), Vector(-44.610774, 52.569504, 0)),  # 1
    Part.ArcOfCircle(Part.Circle(Vector(-48.590139, 48.590139, 0), Vector(0, 0, 1), 5.627672), math.radians(45), math.radians(225)),  # 2
    Part.LineSegment(Vector(-52.569504, 44.610774, 0), Vector(-39.110045, 31.151315, 0)),  # 3
    Part.Circle(Vector(-48.590139, 48.590139, 0), Vector(0, 0, 1), 3.843285),  # 4
], False)
sketch8.addConstraint([
    Sketcher.Constraint("Coincident", 0, 1, 1, 1),
    Sketcher.Constraint("Tangent", 1, 2, 2, 1),
    Sketcher.Constraint("Tangent", 2, 2, 3, 1),
    Sketcher.Constraint("Coincident", 3, 2, 0, 2),
    Sketcher.Constraint("Coincident", 0, 3, -1, 1),
    Sketcher.Constraint("Coincident", 4, 3, 2, 3),
    Sketcher.Constraint("Parallel", 1, 3),
    Sketcher.Constraint("Equal", 1, 3),
    Sketcher.Constraint("Radius", 0, 50.0),
    Sketcher.Constraint("Angle", 1, Q("135 deg")),
    Sketcher.Constraint("Diameter", 4, 7.68657),
    Sketcher.Constraint("Radius", 2, 5.627672),
    Sketcher.Constraint("Distance", 1, 19.03455),
])
pad8 = body7.newObject("PartDesign::Pad", "Pad007")
pad8.Profile = sketch8
pad8.Length = 20
body8 = doc.addObject("PartDesign::Body", "Body007")

# Sketch on XY plane
sketch9 = body8.newObject("Sketcher::SketchObject", "Sketch008")
sketch9.AttachmentSupport = (doc.getObject("XY_Plane007"), [""])
sketch9.MapMode = "FlatFace"
sketch9.addGeometry([
    Part.ArcOfCircle(Part.Circle(Vector(0, 0, 0), Vector(0, 0, 1), 50), math.radians(173.537469), math.radians(186.462531)),  # 0
    Part.LineSegment(Vector(-49.682284, 5.627672, 0), Vector(-68.716834, 5.627672, 0)),  # 1
    Part.ArcOfCircle(Part.Circle(Vector(-68.716834, 0, 0), Vector(0, 0, 1), 5.627672), math.radians(90), math.radians(270)),  # 2
    Part.LineSegment(Vector(-68.716834, -5.627672, 0), Vector(-49.682284, -5.627672, 0)),  # 3
    Part.Circle(Vector(-68.716834, 0, 0), Vector(0, 0, 1), 3.843285),  # 4
], False)
sketch9.addConstraint([
    Sketcher.Constraint("Coincident", 0, 1, 1, 1),
    Sketcher.Constraint("Tangent", 1, 2, 2, 1),
    Sketcher.Constraint("Tangent", 2, 2, 3, 1),
    Sketcher.Constraint("Coincident", 3, 2, 0, 2),
    Sketcher.Constraint("Horizontal", 1),
    Sketcher.Constraint("Horizontal", 3),
    Sketcher.Constraint("Coincident", 0, 3, -1, 1),
    Sketcher.Constraint("Coincident", 4, 3, 2, 3),
    Sketcher.Constraint("PointOnObject", 2, 3, -1),
    Sketcher.Constraint("Radius", 0, 50.0),
    Sketcher.Constraint("Diameter", 4, 7.68657),
    Sketcher.Constraint("Radius", 2, 5.627672),
    Sketcher.Constraint("DistanceX", 1, 2, 1, 1, 19.03455),
])
pad9 = body8.newObject("PartDesign::Pad", "Pad008")
pad9.Profile = sketch9
pad9.Length = 20
body9 = doc.addObject("PartDesign::Body", "Body008")

# Sketch on XY plane
sketch10 = body9.newObject("Sketcher::SketchObject", "Sketch009")
sketch10.AttachmentSupport = (doc.getObject("XY_Plane008"), [""])
sketch10.MapMode = "FlatFace"
sketch10.addGeometry([
    Part.LineSegment(Vector(-44.610774, -52.569504, 0), Vector(-31.151315, -39.110045, 0)),  # 0
    Part.ArcOfCircle(Part.Circle(Vector(0, 0, 0), Vector(0, 0, 1), 50), math.radians(-141.462531), math.radians(-128.537469)),  # 1
    Part.LineSegment(Vector(-39.110045, -31.151315, 0), Vector(-52.569504, -44.610774, 0)),  # 2
    Part.ArcOfCircle(Part.Circle(Vector(-48.590139, -48.590139, 0), Vector(0, 0, 1), 5.627672), math.radians(135), math.radians(315)),  # 3
    Part.Circle(Vector(-48.590139, -48.590139, 0), Vector(0, 0, 1), 3.843285),  # 4
], False)
sketch10.addConstraint([
    Sketcher.Constraint("Coincident", 0, 2, 1, 2),
    Sketcher.Constraint("Coincident", 1, 1, 2, 1),
    Sketcher.Constraint("Tangent", 2, 2, 3, 1),
    Sketcher.Constraint("Tangent", 3, 2, 0, 1),
    Sketcher.Constraint("Coincident", 1, 3, -1, 1),
    Sketcher.Constraint("Coincident", 4, 3, 3, 3),
    Sketcher.Constraint("Parallel", 0, 2),
    Sketcher.Constraint("Equal", 0, 2),
    Sketcher.Constraint("Radius", 1, 50.0),
    Sketcher.Constraint("Angle", 0, Q("45 deg")),
    Sketcher.Constraint("Diameter", 4, 7.68657),
    Sketcher.Constraint("Radius", 3, 5.627672),
    Sketcher.Constraint("Distance", 0, 19.03455),
])
pad10 = body9.newObject("PartDesign::Pad", "Pad009")
pad10.Profile = sketch10
pad10.Length = 20

doc.recompute()
